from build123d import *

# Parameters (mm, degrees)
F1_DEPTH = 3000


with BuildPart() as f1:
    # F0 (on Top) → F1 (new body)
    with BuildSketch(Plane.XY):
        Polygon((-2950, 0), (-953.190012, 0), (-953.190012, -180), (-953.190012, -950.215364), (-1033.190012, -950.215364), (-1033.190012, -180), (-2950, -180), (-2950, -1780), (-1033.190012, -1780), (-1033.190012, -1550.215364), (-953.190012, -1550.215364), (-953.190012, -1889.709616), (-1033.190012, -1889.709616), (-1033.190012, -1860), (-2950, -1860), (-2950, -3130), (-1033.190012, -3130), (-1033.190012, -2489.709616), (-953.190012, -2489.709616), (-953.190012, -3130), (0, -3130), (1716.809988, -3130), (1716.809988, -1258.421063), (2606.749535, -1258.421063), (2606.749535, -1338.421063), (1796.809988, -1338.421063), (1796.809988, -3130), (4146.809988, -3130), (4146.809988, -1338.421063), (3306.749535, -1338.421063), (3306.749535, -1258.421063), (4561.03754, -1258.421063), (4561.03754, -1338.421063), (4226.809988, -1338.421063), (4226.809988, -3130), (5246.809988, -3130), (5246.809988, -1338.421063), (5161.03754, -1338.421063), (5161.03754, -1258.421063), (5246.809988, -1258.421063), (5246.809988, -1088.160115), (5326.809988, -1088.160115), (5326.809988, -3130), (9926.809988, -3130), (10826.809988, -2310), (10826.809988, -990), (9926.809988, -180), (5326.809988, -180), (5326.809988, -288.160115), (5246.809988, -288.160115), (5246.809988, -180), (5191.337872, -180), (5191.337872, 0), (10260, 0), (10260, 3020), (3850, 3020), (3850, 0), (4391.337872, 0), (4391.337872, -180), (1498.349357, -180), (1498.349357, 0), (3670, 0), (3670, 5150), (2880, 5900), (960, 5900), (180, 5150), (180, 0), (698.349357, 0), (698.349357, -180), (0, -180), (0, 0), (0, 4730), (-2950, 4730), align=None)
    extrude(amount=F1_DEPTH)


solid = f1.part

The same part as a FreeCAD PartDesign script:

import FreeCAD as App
import Part
import Sketcher

V = App.Vector
Q = App.Units.Quantity


def add_polygon(sketch, points):
    """Adds a closed chain of lines whose ends are joined by coincident constraints."""
    first, n = sketch.GeometryCount, len(points)
    for a, b in zip(points, points[1:] + points[:1]):
        sketch.addGeometry(Part.LineSegment(App.Vector(*a, 0), App.Vector(*b, 0)), False)
    for i in range(n):
        sketch.addConstraint(Sketcher.Constraint("Coincident", first + i, 2, first + (i + 1) % n, 1))

doc = App.newDocument("Part")
body = doc.addObject("PartDesign::Body", "Body")

# Sketch on XY plane
sketch1 = body.newObject("Sketcher::SketchObject", "Sketch")
sketch1.AttachmentSupport = (doc.getObject("XY_Plane"), [""])
sketch1.MapMode = "FlatFace"
add_polygon(sketch1, [(-2950, 0), (-953.190012, 0), (-953.190012, -950.215364), (-1033.190012, -950.215364), (-1033.190012, -180), (-2950, -180), (-2950, -1780), (-1033.190012, -1780), (-1033.190012, -1550.215364), (-953.190012, -1550.215364), (-953.190012, -1889.709616), (-1033.190012, -1889.709616), (-1033.190012, -1860), (-2950, -1860), (-2950, -3130), (-1033.190012, -3130), (-1033.190012, -2489.709616), (-953.190012, -2489.709616), (-953.190012, -3130), (1716.809988, -3130), (1716.809988, -1258.421063), (2606.749535, -1258.421063), (2606.749535, -1338.421063), (1796.809988, -1338.421063), (1796.809988, -3130), (4146.809988, -3130), (4146.809988, -1338.421063), (3306.749535, -1338.421063), (3306.749535, -1258.421063), (4561.03754, -1258.421063), (4561.03754, -1338.421063), (4226.809988, -1338.421063), (4226.809988, -3130), (5246.809988, -3130), (5246.809988, -1338.421063), (5161.03754, -1338.421063), (5161.03754, -1258.421063), (5246.809988, -1258.421063), (5246.809988, -1088.160115), (5326.809988, -1088.160115), (5326.809988, -3130), (9926.809988, -3130), (10826.809988, -2310), (10826.809988, -990), (9926.809988, -180), (5326.809988, -180), (5326.809988, -288.160115), (5246.809988, -288.160115), (5246.809988, -180), (5191.337872, -180), (5191.337872, 0), (10260, 0), (10260, 3020), (3850, 3020), (3850, 0), (4391.337872, 0), (4391.337872, -180), (1498.349357, -180), (1498.349357, 0), (3670, 0), (3670, 5150), (2880, 5900), (960, 5900), (180, 5150), (180, 0), (698.349357, 0), (698.349357, -180), (0, -180), (0, 4730), (-2950, 4730)])  # lines 0-69
sketch1.addConstraint([
    Sketcher.Constraint("Horizontal", 0),
    Sketcher.Constraint("Vertical", 1),
    Sketcher.Constraint("Horizontal", 2),
    Sketcher.Constraint("Vertical", 3),
    Sketcher.Constraint("Horizontal", 4),
    Sketcher.Constraint("Vertical", 5),
    Sketcher.Constraint("Horizontal", 6),
    Sketcher.Constraint("Vertical", 7),
    Sketcher.Constraint("Horizontal", 8),
    Sketcher.Constraint("Vertical", 9),
    Sketcher.Constraint("Horizontal", 10),
    Sketcher.Constraint("Vertical", 11),
    Sketcher.Constraint("Horizontal", 12),
    Sketcher.Constraint("Vertical", 13),
    Sketcher.Constraint("Horizontal", 14),
    Sketcher.Constraint("Vertical", 15),
    Sketcher.Constraint("Horizontal", 16),
    Sketcher.Constraint("Vertical", 17),
    Sketcher.Constraint("Horizontal", 18),
    Sketcher.Constraint("Vertical", 19),
    Sketcher.Constraint("Horizontal", 20),
    Sketcher.Constraint("Vertical", 21),
    Sketcher.Constraint("Horizontal", 22),
    Sketcher.Constraint("Vertical", 23),
    Sketcher.Constraint("Horizontal", 24),
    Sketcher.Constraint("Vertical", 25),
    Sketcher.Constraint("Horizontal", 26),
    Sketcher.Constraint("Vertical", 27),
    Sketcher.Constraint("Horizontal", 28),
    Sketcher.Constraint("Vertical", 29),
    Sketcher.Constraint("Horizontal", 30),
    Sketcher.Constraint("Vertical", 31),
    Sketcher.Constraint("Horizontal", 32),
    Sketcher.Constraint("Vertical", 33),
    Sketcher.Constraint("Horizontal", 34),
    Sketcher.Constraint("Vertical", 35),
    Sketcher.Constraint("Horizontal", 36),
    Sketcher.Constraint("Vertical", 37),
    Sketcher.Constraint("Horizontal", 38),
    Sketcher.Constraint("Vertical", 39),
    Sketcher.Constraint("Horizontal", 40),
    Sketcher.Constraint("Vertical", 42),
    Sketcher.Constraint("Horizontal", 44),
    Sketcher.Constraint("Vertical", 45),
    Sketcher.Constraint("Horizontal", 46),
    Sketcher.Constraint("Vertical", 47),
    Sketcher.Constraint("Horizontal", 48),
    Sketcher.Constraint("Vertical", 49),
    Sketcher.Constraint("Horizontal", 50),
    Sketcher.Constraint("Vertical", 51),
    Sketcher.Constraint("Horizontal", 52),
    Sketcher.Constraint("Vertical", 53),
    Sketcher.Constraint("Horizontal", 54),
    Sketcher.Constraint("Vertical", 55),
    Sketcher.Constraint("Horizontal", 56),
    Sketcher.Constraint("Vertical", 57),
    Sketcher.Constraint("Horizontal", 58),
    Sketcher.Constraint("Vertical", 59),
    Sketcher.Constraint("Horizontal", 61),
    Sketcher.Constraint("Vertical", 63),
    Sketcher.Constraint("Horizontal", 64),
    Sketcher.Constraint("Vertical", 65),
    Sketcher.Constraint("Horizontal", 66),
    Sketcher.Constraint("Vertical", 67),
    Sketcher.Constraint("Horizontal", 68),
    Sketcher.Constraint("Vertical", 69),
    Sketcher.Constraint("PointOnObject", 0, 2, -1),
    Sketcher.Constraint("PointOnObject", 49, 2, -1),
    Sketcher.Constraint("PointOnObject", 53, 2, -1),
    Sketcher.Constraint("PointOnObject", 57, 2, -1),
    Sketcher.Constraint("PointOnObject", 63, 2, -1),
    Sketcher.Constraint("PointOnObject", 66, 2, -2),
    Sketcher.Constraint("Horizontal", 14, 2, 17, 2),
    Sketcher.Constraint("Horizontal", 18, 2, 23, 2),
    Sketcher.Constraint("Horizontal", 22, 2, 25, 2),
    Sketcher.Constraint("Horizontal", 20, 2, 27, 2),
    Sketcher.Constraint("Horizontal", 26, 2, 29, 2),
    Sketcher.Constraint("Horizontal", 24, 2, 31, 2),
    Sketcher.Constraint("Horizontal", 30, 2, 33, 2),
    Sketcher.Constraint("Horizontal", 28, 2, 35, 2),
    Sketcher.Constraint("Horizontal", 32, 2, 39, 2),
    Sketcher.Constraint("Horizontal", 4, 2, 43, 2),
    Sketcher.Constraint("Horizontal", 44, 2, 47, 2),
    Sketcher.Constraint("Horizontal", 48, 2, 55, 2),
    Sketcher.Constraint("Horizontal", 59, 2, 62, 2),
    Sketcher.Constraint("Horizontal", 56, 2, 65, 2),
    Sketcher.Constraint("Vertical", 3, 2, 6, 2),
    Sketcher.Constraint("Vertical", 1, 2, 8, 2),
    Sketcher.Constraint("Vertical", 7, 2, 10, 2),
    Sketcher.Constraint("Vertical", 5, 2, 12, 2),
    Sketcher.Constraint("Vertical", 11, 2, 14, 2),
    Sketcher.Constraint("Vertical", 9, 2, 16, 2),
    Sketcher.Constraint("Vertical", 33, 2, 36, 2),
    Sketcher.Constraint("Vertical", 40, 2, 43, 2),
    Sketcher.Constraint("Vertical", 39, 2, 44, 2),
    Sketcher.Constraint("Vertical", 37, 2, 46, 2),
    Sketcher.Constraint("Vertical", 13, 2, 68, 2),
    Sketcher.Constraint("Equal", 16, 38),
    Sketcher.Constraint("Equal", 46, 21),
    Sketcher.Constraint("DistanceX", 2, 2, 2, 1, Q("80 mm")),
    Sketcher.Constraint("DistanceX", 18, 1, 18, 2, Q("2670 mm")),
    Sketcher.Constraint("DistanceX", 24, 1, 24, 2, Q("2350 mm")),
    Sketcher.Constraint("DistanceX", 32, 1, 32, 2, Q("1020 mm")),
    Sketcher.Constraint("DistanceX", 40, 1, 40, 2, Q("4600 mm")),
    Sketcher.Constraint("DistanceX", 52, 2, 52, 1, Q("6410 mm")),
    Sketcher.Constraint("DistanceX", 61, 2, 61, 1, Q("1920 mm")),
    Sketcher.Constraint("DistanceX", 68, 2, 68, 1, Q("2950 mm")),
    Sketcher.Constraint("DistanceY", 5, 2, 5, 1, Q("1600 mm")),
    Sketcher.Constraint("DistanceY", 13, 2, 13, 1, Q("1270 mm")),
    Sketcher.Constraint("DistanceY", 42, 1, 42, 2, Q("1320 mm")),
    Sketcher.Constraint("DistanceY", 49, 1, 49, 2, Q("180 mm")),
    Sketcher.Constraint("DistanceY", 51, 1, 51, 2, Q("3020 mm")),
    Sketcher.Constraint("DistanceY", 59, 1, 59, 2, Q("5150 mm")),
    Sketcher.Constraint("DistanceY", 67, 1, 67, 2, Q("4910 mm")),
    Sketcher.Constraint("DistanceY", 11, 2, -1, 1, Q("1860 mm")),
    Sketcher.Constraint("DistanceY", 41, 2, -1, 1, Q("2310 mm")),
    Sketcher.Constraint("DistanceX", -1, 1, 50, 2, Q("10260 mm")),
    Sketcher.Constraint("DistanceX", -1, 1, 58, 2, Q("3670 mm")),
    Sketcher.Constraint("DistanceX", -1, 1, 60, 2, Q("2880 mm")),
    Sketcher.Constraint("DistanceY", -1, 1, 60, 2, Q("5900 mm")),
    Sketcher.Constraint("DistanceX", -1, 1, 62, 2, Q("180 mm")),
    Sketcher.Constraint("Distance", 41, Q("1217.5385 mm")),
    Sketcher.Constraint("DistanceX", 0, 1, 0, 2, Q("1996.809988 mm")),
    Sketcher.Constraint("DistanceX", 50, 1, 50, 2, Q("5068.662128 mm")),
    Sketcher.Constraint("DistanceY", 37, 1, 37, 2, Q("170.260948 mm")),
    Sketcher.Constraint("DistanceX", 20, 1, 20, 2, Q("889.939547 mm")),
    Sketcher.Constraint("DistanceX", 22, 2, 22, 1, Q("809.939547 mm")),
    Sketcher.Constraint("DistanceX", 26, 2, 26, 1, Q("840.060453 mm")),
    Sketcher.Constraint("DistanceX", 28, 1, 28, 2, Q("1254.288005 mm")),
    Sketcher.Constraint("DistanceX", 30, 2, 30, 1, Q("334.227552 mm")),
    Sketcher.Constraint("DistanceX", 34, 2, 34, 1, Q("85.772448 mm")),
    Sketcher.Constraint("DistanceX", 54, 1, 54, 2, Q("541.337872 mm")),
    Sketcher.Constraint("DistanceX", 56, 2, 56, 1, Q("2892.988515 mm")),
    Sketcher.Constraint("DistanceX", 64, 1, 64, 2, Q("518.349357 mm")),
    Sketcher.Constraint("DistanceY", 1, 2, 1, 1, Q("950.215364 mm")),
    Sketcher.Constraint("DistanceY", 7, 1, 7, 2, Q("229.784636 mm")),
    Sketcher.Constraint("DistanceY", 9, 2, 9, 1, Q("339.494252 mm")),
    Sketcher.Constraint("DistanceY", 15, 1, 15, 2, Q("640.290384 mm")),
    Sketcher.Constraint("DistanceY", 19, 1, 19, 2, Q("1871.578937 mm")),
    Sketcher.Constraint("DistanceY", 45, 2, 45, 1, Q("108.160115 mm")),
])
pad1 = body.newObject("PartDesign::Pad", "Pad")
pad1.Profile = sketch1
pad1.Length = 3000

doc.recompute()
